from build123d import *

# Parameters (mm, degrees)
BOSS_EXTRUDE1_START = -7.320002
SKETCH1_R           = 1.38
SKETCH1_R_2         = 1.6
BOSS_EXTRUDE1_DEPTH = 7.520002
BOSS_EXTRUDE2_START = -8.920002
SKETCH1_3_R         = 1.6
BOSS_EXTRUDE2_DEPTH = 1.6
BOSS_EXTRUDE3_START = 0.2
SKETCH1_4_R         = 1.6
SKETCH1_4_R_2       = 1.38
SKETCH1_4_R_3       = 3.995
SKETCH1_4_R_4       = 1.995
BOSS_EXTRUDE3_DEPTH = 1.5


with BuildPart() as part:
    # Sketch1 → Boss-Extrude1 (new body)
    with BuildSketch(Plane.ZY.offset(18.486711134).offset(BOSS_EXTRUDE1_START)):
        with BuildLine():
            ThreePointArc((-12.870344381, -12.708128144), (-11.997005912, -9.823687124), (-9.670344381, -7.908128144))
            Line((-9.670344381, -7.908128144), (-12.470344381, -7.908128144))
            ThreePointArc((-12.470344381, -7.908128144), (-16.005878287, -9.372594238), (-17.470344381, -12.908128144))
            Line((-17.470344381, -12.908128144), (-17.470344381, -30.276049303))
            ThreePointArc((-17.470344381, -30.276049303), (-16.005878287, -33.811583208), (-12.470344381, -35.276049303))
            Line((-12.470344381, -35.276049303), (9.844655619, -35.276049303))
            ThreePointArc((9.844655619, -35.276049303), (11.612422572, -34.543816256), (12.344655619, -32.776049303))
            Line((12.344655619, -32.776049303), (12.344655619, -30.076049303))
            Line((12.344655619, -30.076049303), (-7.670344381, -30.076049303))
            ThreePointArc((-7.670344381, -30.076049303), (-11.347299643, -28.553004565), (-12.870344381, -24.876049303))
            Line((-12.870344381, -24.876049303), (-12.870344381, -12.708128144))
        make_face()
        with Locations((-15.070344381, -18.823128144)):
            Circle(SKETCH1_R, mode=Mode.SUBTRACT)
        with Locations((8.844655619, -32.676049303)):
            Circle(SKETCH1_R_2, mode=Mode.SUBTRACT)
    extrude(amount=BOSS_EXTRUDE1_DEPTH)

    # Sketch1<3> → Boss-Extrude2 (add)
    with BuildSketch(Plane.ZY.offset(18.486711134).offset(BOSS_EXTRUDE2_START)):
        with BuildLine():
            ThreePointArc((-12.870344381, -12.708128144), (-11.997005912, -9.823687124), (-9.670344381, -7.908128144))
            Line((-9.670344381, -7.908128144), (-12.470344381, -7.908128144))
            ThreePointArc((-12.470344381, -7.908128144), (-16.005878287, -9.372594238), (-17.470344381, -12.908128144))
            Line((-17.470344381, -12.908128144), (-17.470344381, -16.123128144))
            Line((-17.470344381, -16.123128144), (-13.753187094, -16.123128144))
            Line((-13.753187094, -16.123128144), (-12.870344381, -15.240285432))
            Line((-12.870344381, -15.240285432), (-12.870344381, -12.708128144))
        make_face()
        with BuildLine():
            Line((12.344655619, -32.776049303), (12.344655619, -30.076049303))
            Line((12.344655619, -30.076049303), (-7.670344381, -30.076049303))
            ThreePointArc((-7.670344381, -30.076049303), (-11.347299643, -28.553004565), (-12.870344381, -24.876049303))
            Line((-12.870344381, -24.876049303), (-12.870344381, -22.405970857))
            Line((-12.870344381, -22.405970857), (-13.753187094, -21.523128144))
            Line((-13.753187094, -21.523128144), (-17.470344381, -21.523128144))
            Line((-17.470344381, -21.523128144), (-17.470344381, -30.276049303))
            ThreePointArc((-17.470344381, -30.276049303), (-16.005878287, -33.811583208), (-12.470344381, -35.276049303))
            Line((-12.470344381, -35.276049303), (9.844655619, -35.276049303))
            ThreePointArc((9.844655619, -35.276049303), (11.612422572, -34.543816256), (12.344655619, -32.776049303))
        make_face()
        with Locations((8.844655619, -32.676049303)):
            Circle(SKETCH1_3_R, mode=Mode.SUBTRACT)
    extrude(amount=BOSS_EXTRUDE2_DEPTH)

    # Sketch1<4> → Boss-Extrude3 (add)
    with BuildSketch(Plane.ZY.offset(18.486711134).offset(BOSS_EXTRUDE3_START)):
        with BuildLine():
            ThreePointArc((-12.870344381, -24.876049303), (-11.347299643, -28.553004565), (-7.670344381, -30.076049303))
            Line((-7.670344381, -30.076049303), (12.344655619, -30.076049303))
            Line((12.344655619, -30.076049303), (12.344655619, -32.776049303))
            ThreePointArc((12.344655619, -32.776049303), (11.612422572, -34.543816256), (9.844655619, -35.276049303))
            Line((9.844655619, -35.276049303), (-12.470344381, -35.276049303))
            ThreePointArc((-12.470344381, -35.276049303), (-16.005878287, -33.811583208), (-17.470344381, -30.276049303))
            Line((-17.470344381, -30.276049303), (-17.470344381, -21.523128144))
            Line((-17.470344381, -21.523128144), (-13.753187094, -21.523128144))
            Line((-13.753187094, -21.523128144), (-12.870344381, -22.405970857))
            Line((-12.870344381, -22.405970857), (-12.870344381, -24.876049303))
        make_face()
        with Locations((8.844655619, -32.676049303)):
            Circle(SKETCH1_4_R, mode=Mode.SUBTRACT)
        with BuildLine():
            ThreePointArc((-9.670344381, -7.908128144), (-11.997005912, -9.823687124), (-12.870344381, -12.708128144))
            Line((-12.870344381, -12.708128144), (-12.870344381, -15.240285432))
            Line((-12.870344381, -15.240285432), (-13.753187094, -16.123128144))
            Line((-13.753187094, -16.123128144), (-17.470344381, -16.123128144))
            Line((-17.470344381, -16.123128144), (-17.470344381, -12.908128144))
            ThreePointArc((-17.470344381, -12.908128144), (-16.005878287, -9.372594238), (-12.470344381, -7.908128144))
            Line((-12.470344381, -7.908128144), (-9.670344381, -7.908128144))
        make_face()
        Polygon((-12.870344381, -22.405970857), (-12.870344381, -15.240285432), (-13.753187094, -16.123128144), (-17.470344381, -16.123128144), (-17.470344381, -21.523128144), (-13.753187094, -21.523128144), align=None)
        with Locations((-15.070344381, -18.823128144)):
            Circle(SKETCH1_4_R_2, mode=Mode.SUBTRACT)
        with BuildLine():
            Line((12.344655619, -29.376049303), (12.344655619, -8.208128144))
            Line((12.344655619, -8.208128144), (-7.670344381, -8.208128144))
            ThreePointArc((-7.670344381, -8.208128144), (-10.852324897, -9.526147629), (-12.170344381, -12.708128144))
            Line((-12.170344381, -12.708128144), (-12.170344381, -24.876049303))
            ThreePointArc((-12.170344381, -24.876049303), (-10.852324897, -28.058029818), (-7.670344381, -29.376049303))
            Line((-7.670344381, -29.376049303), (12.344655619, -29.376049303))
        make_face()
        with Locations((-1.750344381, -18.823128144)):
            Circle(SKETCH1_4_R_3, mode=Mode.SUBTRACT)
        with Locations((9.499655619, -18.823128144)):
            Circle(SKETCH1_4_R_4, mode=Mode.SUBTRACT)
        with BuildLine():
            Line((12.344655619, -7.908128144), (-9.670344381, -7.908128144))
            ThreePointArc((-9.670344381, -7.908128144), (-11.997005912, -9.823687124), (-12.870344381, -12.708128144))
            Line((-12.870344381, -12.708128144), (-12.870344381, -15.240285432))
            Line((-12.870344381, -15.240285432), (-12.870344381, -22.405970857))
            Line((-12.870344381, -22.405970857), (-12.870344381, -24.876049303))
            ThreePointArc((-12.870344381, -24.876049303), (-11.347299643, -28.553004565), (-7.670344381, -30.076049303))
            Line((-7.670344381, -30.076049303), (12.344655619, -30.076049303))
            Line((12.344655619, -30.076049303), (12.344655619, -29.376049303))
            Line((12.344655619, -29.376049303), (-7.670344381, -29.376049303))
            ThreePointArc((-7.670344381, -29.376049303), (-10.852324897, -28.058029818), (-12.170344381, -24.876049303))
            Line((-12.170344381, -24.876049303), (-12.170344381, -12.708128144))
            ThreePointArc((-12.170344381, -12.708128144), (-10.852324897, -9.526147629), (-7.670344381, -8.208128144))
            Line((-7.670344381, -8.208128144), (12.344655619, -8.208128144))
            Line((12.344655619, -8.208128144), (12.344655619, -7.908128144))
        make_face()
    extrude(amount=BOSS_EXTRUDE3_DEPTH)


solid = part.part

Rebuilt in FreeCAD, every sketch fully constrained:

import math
import FreeCAD as App
import Part
import Sketcher
Q = App.Units.Quantity

doc = App.newDocument("Part")
body = doc.addObject("PartDesign::Body", "Body")

# Sketch on YZ plane
sketch1 = doc.addObject("Sketcher::SketchObject", "Sketch")
body.addObject(sketch1)
sketch1.AttachmentSupport = (doc.YZ_Plane, [""])
sketch1.MapMode = "FlatFace"
sketch1.AttachmentOffset = App.Placement(App.Vector(0, 0, -11.166709), App.Rotation())
sketch1.addGeometry(Part.ArcOfCircle(Part.Circle(App.Vector(-12.7, -7.7, 0), App.Vector(0, 0, 1), 5.2), math.radians(-90), math.radians(-23)), False)
sketch1.addGeometry(Part.LineSegment(App.Vector(-7.9, -9.7, 0), App.Vector(-7.9, -12.5, 0)), False)
sketch1.addGeometry(Part.ArcOfCircle(Part.Circle(App.Vector(-12.9, -12.5, 0), App.Vector(0, 0, 1), 5), math.radians(-90), math.radians(0)), False)
sketch1.addGeometry(Part.LineSegment(App.Vector(-12.9, -17.5, 0), App.Vector(-30.3, -17.5, 0)), False)
sketch1.addGeometry(Part.ArcOfCircle(Part.Circle(App.Vector(-30.3, -12.5, 0), App.Vector(0, 0, 1), 5), math.radians(-180), math.radians(-90)), False)
sketch1.addGeometry(Part.LineSegment(App.Vector(-35.3, -12.5, 0), App.Vector(-35.3, 9.8, 0)), False)
sketch1.addGeometry(Part.ArcOfCircle(Part.Circle(App.Vector(-32.8, 9.8, 0), App.Vector(0, 0, 1), 2.5), math.radians(90), math.radians(180)), False)
sketch1.addGeometry(Part.LineSegment(App.Vector(-32.8, 12.3, 0), App.Vector(-30.1, 12.3, 0)), False)
sketch1.addGeometry(Part.LineSegment(App.Vector(-30.1, 12.3, 0), App.Vector(-30.1, -7.7, 0)), False)
sketch1.addGeometry(Part.ArcOfCircle(Part.Circle(App.Vector(-24.9, -7.7, 0), App.Vector(0, 0, 1), 5.2), math.radians(-180), math.radians(-90)), False)
sketch1.addGeometry(Part.LineSegment(App.Vector(-24.9, -12.9, 0), App.Vector(-12.7, -12.9, 0)), False)
sketch1.addGeometry(Part.Circle(App.Vector(-32.7, 8.8, 0), App.Vector(0, 0, 1), 1.6), False)
sketch1.addGeometry(Part.Circle(App.Vector(-18.8, -15.1, 0), App.Vector(0, 0, 1), 1.4), False)
sketch1.addConstraint(Sketcher.Constraint("Coincident", 0, 2, 1, 1))
sketch1.addConstraint(Sketcher.Constraint("Tangent", 1, 2, 2, 2))
sketch1.addConstraint(Sketcher.Constraint("Tangent", 2, 1, 3, 1))
sketch1.addConstraint(Sketcher.Constraint("Tangent", 3, 2, 4, 2))
sketch1.addConstraint(Sketcher.Constraint("Tangent", 4, 1, 5, 1))
sketch1.addConstraint(Sketcher.Constraint("Tangent", 5, 2, 6, 2))
sketch1.addConstraint(Sketcher.Constraint("Tangent", 6, 1, 7, 1))
sketch1.addConstraint(Sketcher.Constraint("Coincident", 7, 2, 8, 1))
sketch1.addConstraint(Sketcher.Constraint("Tangent", 8, 2, 9, 1))
sketch1.addConstraint(Sketcher.Constraint("Tangent", 9, 2, 10, 1))
sketch1.addConstraint(Sketcher.Constraint("Tangent", 10, 2, 0, 1))
sketch1.addConstraint(Sketcher.Constraint("Vertical", 1))
sketch1.addConstraint(Sketcher.Constraint("Horizontal", 3))
sketch1.addConstraint(Sketcher.Constraint("Vertical", 5))
sketch1.addConstraint(Sketcher.Constraint("Horizontal", 7))
sketch1.addConstraint(Sketcher.Constraint("Vertical", 8))
sketch1.addConstraint(Sketcher.Constraint("Horizontal", 10))
sketch1.addConstraint(Sketcher.Constraint("Equal", 2, 4))
sketch1.addConstraint(Sketcher.Constraint("Equal", 0, 9))
sketch1.addConstraint(Sketcher.Constraint("Radius", 2, Q("5 mm")))
sketch1.addConstraint(Sketcher.Constraint("Diameter", 11, Q("3.2 mm")))
sketch1.addConstraint(Sketcher.Constraint("Radius", 0, Q("5.2 mm")))
sketch1.addConstraint(Sketcher.Constraint("Radius", 6, Q("2.5 mm")))
sketch1.addConstraint(Sketcher.Constraint("Diameter", 12, Q("2.76 mm")))
sketch1.addConstraint(Sketcher.Constraint("DistanceX", 7, 1, 7, 2, Q("2.7 mm")))
sketch1.addConstraint(Sketcher.Constraint("DistanceY", 1, 2, 1, 1, Q("2.8 mm")))
sketch1.addConstraint(Sketcher.Constraint("DistanceY", 11, 3, 6, 3, Q("1 mm")))
sketch1.addConstraint(Sketcher.Constraint("DistanceY", 0, 2, 0, 3, Q("2 mm")))
sketch1.addConstraint(Sketcher.Constraint("DistanceX", 6, 3, 11, 3, Q("0.1 mm")))
sketch1.addConstraint(Sketcher.Constraint("DistanceY", 12, 3, 2, 3, Q("2.6 mm")))
sketch1.addConstraint(Sketcher.Constraint("DistanceY", 5, 1, 5, 2, Q("22.315 mm")))
sketch1.addConstraint(Sketcher.Constraint("DistanceX", 12, 3, 2, 3, Q("5.915 mm")))
sketch1.addConstraint(Sketcher.Constraint("DistanceX", 3, 2, 3, 1, Q("17.367921 mm")))
sketch1.addConstraint(Sketcher.Constraint("DistanceX", 0, 3, -1, 1, Q("12.708128 mm")))
sketch1.addConstraint(Sketcher.Constraint("DistanceY", 0, 3, -1, 1, Q("7.670344 mm")))
pad1 = doc.addObject("PartDesign::Pad", "Pad")
body.addObject(pad1)
pad1.Profile = sketch1
pad1.Length = 7.520002
pad1.Reversed = True

# Sketch on YZ plane
sketch2 = doc.addObject("Sketcher::SketchObject", "Sketch001")
body.addObject(sketch2)
sketch2.AttachmentSupport = (doc.YZ_Plane, [""])
sketch2.MapMode = "FlatFace"
sketch2.AttachmentOffset = App.Placement(App.Vector(0, 0, -9.566709), App.Rotation())
sketch2.addGeometry(Part.ArcOfCircle(Part.Circle(App.Vector(-12.7, -7.7, 0), App.Vector(0, 0, 1), 5.2), math.radians(-90), math.radians(-23)), False)
sketch2.addGeometry(Part.LineSegment(App.Vector(-7.9, -9.7, 0), App.Vector(-7.9, -12.5, 0)), False)
sketch2.addGeometry(Part.ArcOfCircle(Part.Circle(App.Vector(-12.9, -12.5, 0), App.Vector(0, 0, 1), 5), math.radians(-90), math.radians(0)), False)
sketch2.addGeometry(Part.LineSegment(App.Vector(-12.9, -17.5, 0), App.Vector(-16.1, -17.5, 0)), False)
sketch2.addGeometry(Part.LineSegment(App.Vector(-16.1, -17.5, 0), App.Vector(-16.1, -13.8, 0)), False)
sketch2.addGeometry(Part.LineSegment(App.Vector(-16.1, -13.8, 0), App.Vector(-15.2, -12.9, 0)), False)
sketch2.addGeometry(Part.LineSegment(App.Vector(-15.2, -12.9, 0), App.Vector(-12.7, -12.9, 0)), False)
sketch2.addGeometry(Part.LineSegment(App.Vector(-32.8, 12.3, 0), App.Vector(-30.1, 12.3, 0)), False)
sketch2.addGeometry(Part.LineSegment(App.Vector(-30.1, 12.3, 0), App.Vector(-30.1, -7.7, 0)), False)
sketch2.addGeometry(Part.ArcOfCircle(Part.Circle(App.Vector(-24.9, -7.7, 0), App.Vector(0, 0, 1), 5.2), math.radians(-180), math.radians(-90)), False)
sketch2.addGeometry(Part.LineSegment(App.Vector(-24.9, -12.9, 0), App.Vector(-22.4, -12.9, 0)), False)
sketch2.addGeometry(Part.LineSegment(App.Vector(-22.4, -12.9, 0), App.Vector(-21.5, -13.8, 0)), False)
sketch2.addGeometry(Part.LineSegment(App.Vector(-21.5, -13.8, 0), App.Vector(-21.5, -17.5, 0)), False)
sketch2.addGeometry(Part.LineSegment(App.Vector(-21.5, -17.5, 0), App.Vector(-30.3, -17.5, 0)), False)
sketch2.addGeometry(Part.ArcOfCircle(Part.Circle(App.Vector(-30.3, -12.5, 0), App.Vector(0, 0, 1), 5), math.radians(-180), math.radians(-90)), False)
sketch2.addGeometry(Part.LineSegment(App.Vector(-35.3, -12.5, 0), App.Vector(-35.3, 9.8, 0)), False)
sketch2.addGeometry(Part.ArcOfCircle(Part.Circle(App.Vector(-32.8, 9.8, 0), App.Vector(0, 0, 1), 2.5), math.radians(90), math.radians(180)), False)
sketch2.addGeometry(Part.Circle(App.Vector(-32.7, 8.8, 0), App.Vector(0, 0, 1), 1.6), False)
sketch2.addConstraint(Sketcher.Constraint("Coincident", 0, 2, 1, 1))
sketch2.addConstraint(Sketcher.Constraint("Tangent", 1, 2, 2, 2))
sketch2.addConstraint(Sketcher.Constraint("Tangent", 2, 1, 3, 1))
sketch2.addConstraint(Sketcher.Constraint("Coincident", 3, 2, 4, 1))
sketch2.addConstraint(Sketcher.Constraint("Coincident", 4, 2, 5, 1))
sketch2.addConstraint(Sketcher.Constraint("Coincident", 5, 2, 6, 1))
sketch2.addConstraint(Sketcher.Constraint("Tangent", 6, 2, 0, 1))
sketch2.addConstraint(Sketcher.Constraint("Coincident", 7, 2, 8, 1))
sketch2.addConstraint(Sketcher.Constraint("Tangent", 8, 2, 9, 1))
sketch2.addConstraint(Sketcher.Constraint("Tangent", 9, 2, 10, 1))
sketch2.addConstraint(Sketcher.Constraint("Coincident", 10, 2, 11, 1))
sketch2.addConstraint(Sketcher.Constraint("Coincident", 11, 2, 12, 1))
sketch2.addConstraint(Sketcher.Constraint("Coincident", 12, 2, 13, 1))
sketch2.addConstraint(Sketcher.Constraint("Tangent", 13, 2, 14, 2))
sketch2.addConstraint(Sketcher.Constraint("Tangent", 14, 1, 15, 1))
sketch2.addConstraint(Sketcher.Constraint("Tangent", 15, 2, 16, 2))
sketch2.addConstraint(Sketcher.Constraint("Tangent", 16, 1, 7, 1))
sketch2.addConstraint(Sketcher.Constraint("Vertical", 1))
sketch2.addConstraint(Sketcher.Constraint("Horizontal", 3))
sketch2.addConstraint(Sketcher.Constraint("Vertical", 4))
sketch2.addConstraint(Sketcher.Constraint("Horizontal", 6))
sketch2.addConstraint(Sketcher.Constraint("Horizontal", 7))
sketch2.addConstraint(Sketcher.Constraint("Vertical", 8))
sketch2.addConstraint(Sketcher.Constraint("Horizontal", 10))
sketch2.addConstraint(Sketcher.Constraint("Vertical", 12))
sketch2.addConstraint(Sketcher.Constraint("Horizontal", 13))
sketch2.addConstraint(Sketcher.Constraint("Vertical", 15))
sketch2.addConstraint(Sketcher.Constraint("Equal", 0, 9))
sketch2.addConstraint(Sketcher.Constraint("Equal", 2, 14))
sketch2.addConstraint(Sketcher.Constraint("Perpendicular", 5, 11))
sketch2.addConstraint(Sketcher.Constraint("Horizontal", 0, 3, 9, 3))
sketch2.addConstraint(Sketcher.Constraint("Horizontal", 2, 3, 14, 3))
sketch2.addConstraint(Sketcher.Constraint("Horizontal", 4, 2, 11, 2))
sketch2.addConstraint(Sketcher.Constraint("Equal", 5, 11))
sketch2.addConstraint(Sketcher.Constraint("Radius", 2, Q("5 mm")))
sketch2.addConstraint(Sketcher.Constraint("Diameter", 17, Q("3.2 mm")))
sketch2.addConstraint(Sketcher.Constraint("Radius", 0, Q("5.2 mm")))
sketch2.addConstraint(Sketcher.Constraint("Radius", 16, Q("2.5 mm")))
sketch2.addConstraint(Sketcher.Constraint("DistanceX", 7, 1, 7, 2, Q("2.7 mm")))
sketch2.addConstraint(Sketcher.Constraint("DistanceY", 1, 2, 1, 1, Q("2.8 mm")))
sketch2.addConstraint(Sketcher.Constraint("DistanceY", 17, 3, 16, 3, Q("1 mm")))
sketch2.addConstraint(Sketcher.Constraint("DistanceY", 0, 2, 0, 3, Q("2 mm")))
sketch2.addConstraint(Sketcher.Constraint("DistanceX", 16, 3, 17, 3, Q("0.1 mm")))
sketch2.addConstraint(Sketcher.Constraint("DistanceX", 11, 2, 4, 2, Q("5.4 mm")))
sketch2.addConstraint(Sketcher.Constraint("DistanceX", 3, 2, 3, 1, Q("3.215 mm")))
sketch2.addConstraint(Sketcher.Constraint("DistanceY", 8, 2, 8, 1, Q("20.015 mm")))
sketch2.addConstraint(Sketcher.Constraint("DistanceX", 10, 1, 10, 2, Q("2.470078 mm")))
sketch2.addConstraint(Sketcher.Constraint("DistanceX", 13, 2, 13, 1, Q("8.752921 mm")))
sketch2.addConstraint(Sketcher.Constraint("DistanceX", 0, 3, -1, 1, Q("12.708128 mm")))
sketch2.addConstraint(Sketcher.Constraint("DistanceY", 0, 3, -1, 1, Q("7.670344 mm")))
pad2 = doc.addObject("PartDesign::Pad", "Pad001")
body.addObject(pad2)
pad2.Profile = sketch2
pad2.Length = 1.6
pad2.Reversed = True

# Sketch on YZ plane
sketch3 = doc.addObject("Sketcher::SketchObject", "Sketch002")
body.addObject(sketch3)
sketch3.AttachmentSupport = (doc.YZ_Plane, [""])
sketch3.MapMode = "FlatFace"
sketch3.AttachmentOffset = App.Placement(App.Vector(0, 0, -18.686711), App.Rotation())
sketch3.addGeometry(Part.LineSegment(App.Vector(-32.8, 12.3, 0), App.Vector(-7.9, 12.3, 0)), False)
sketch3.addGeometry(Part.LineSegment(App.Vector(-7.9, 12.3, 0), App.Vector(-7.9, -12.5, 0)), False)
sketch3.addGeometry(Part.ArcOfCircle(Part.Circle(App.Vector(-12.9, -12.5, 0), App.Vector(0, 0, 1), 5), math.radians(-90), math.radians(0)), False)
sketch3.addGeometry(Part.LineSegment(App.Vector(-12.9, -17.5, 0), App.Vector(-30.3, -17.5, 0)), False)
sketch3.addGeometry(Part.ArcOfCircle(Part.Circle(App.Vector(-30.3, -12.5, 0), App.Vector(0, 0, 1), 5), math.radians(-180), math.radians(-90)), False)
sketch3.addGeometry(Part.LineSegment(App.Vector(-35.3, -12.5, 0), App.Vector(-35.3, 9.8, 0)), False)
sketch3.addGeometry(Part.ArcOfCircle(Part.Circle(App.Vector(-32.8, 9.8, 0), App.Vector(0, 0, 1), 2.5), math.radians(90), math.radians(180)), False)
sketch3.addGeometry(Part.Circle(App.Vector(-32.7, 8.8, 0), App.Vector(0, 0, 1), 1.6), False)
sketch3.addGeometry(Part.Circle(App.Vector(-18.8, -15.1, 0), App.Vector(0, 0, 1), 1.4), False)
sketch3.addGeometry(Part.Circle(App.Vector(-18.8, 9.5, 0), App.Vector(0, 0, 1), 2), False)
sketch3.addGeometry(Part.Circle(App.Vector(-18.8, -1.8, 0), App.Vector(0, 0, 1), 4), False)
sketch3.addConstraint(Sketcher.Constraint("Coincident", 0, 2, 1, 1))
sketch3.addConstraint(Sketcher.Constraint("Tangent", 1, 2, 2, 2))
sketch3.addConstraint(Sketcher.Constraint("Tangent", 2, 1, 3, 1))
sketch3.addConstraint(Sketcher.Constraint("Tangent", 3, 2, 4, 2))
sketch3.addConstraint(Sketcher.Constraint("Tangent", 4, 1, 5, 1))
sketch3.addConstraint(Sketcher.Constraint("Tangent", 5, 2, 6, 2))
sketch3.addConstraint(Sketcher.Constraint("Tangent", 6, 1, 0, 1))
sketch3.addConstraint(Sketcher.Constraint("Horizontal", 0))
sketch3.addConstraint(Sketcher.Constraint("Vertical", 1))
sketch3.addConstraint(Sketcher.Constraint("Horizontal", 3))
sketch3.addConstraint(Sketcher.Constraint("Vertical", 5))
sketch3.addConstraint(Sketcher.Constraint("Equal", 2, 4))
sketch3.addConstraint(Sketcher.Constraint("Vertical", 8, 3, 9, 3))
sketch3.addConstraint(Sketcher.Constraint("Vertical", 9, 3, 10, 3))
sketch3.addConstraint(Sketcher.Constraint("Radius", 2, Q("5 mm")))
sketch3.addConstraint(Sketcher.Constraint("Diameter", 7, Q("3.2 mm")))
sketch3.addConstraint(Sketcher.Constraint("Radius", 6, Q("2.5 mm")))
sketch3.addConstraint(Sketcher.Constraint("Diameter", 8, Q("2.76 mm")))
sketch3.addConstraint(Sketcher.Constraint("Diameter", 9, Q("3.99 mm")))
sketch3.addConstraint(Sketcher.Constraint("Diameter", 10, Q("7.99 mm")))
sketch3.addConstraint(Sketcher.Constraint("DistanceY", 7, 3, 6, 3, Q("1 mm")))
sketch3.addConstraint(Sketcher.Constraint("DistanceX", 6, 3, 7, 3, Q("0.1 mm")))
sketch3.addConstraint(Sketcher.Constraint("DistanceY", 8, 3, 2, 3, Q("2.6 mm")))
sketch3.addConstraint(Sketcher.Constraint("DistanceY", 1, 2, 1, 1, Q("24.815 mm")))
sketch3.addConstraint(Sketcher.Constraint("DistanceY", 2, 3, 9, 3, Q("21.97 mm")))
sketch3.addConstraint(Sketcher.Constraint("DistanceY", 10, 3, 9, 3, Q("11.25 mm")))
sketch3.addConstraint(Sketcher.Constraint("DistanceX", 8, 3, 2, 3, Q("5.915 mm")))
sketch3.addConstraint(Sketcher.Constraint("DistanceX", 0, 1, 0, 2, Q("24.867921 mm")))
sketch3.addConstraint(Sketcher.Constraint("DistanceX", 2, 3, -1, 1, Q("12.908128 mm")))
sketch3.addConstraint(Sketcher.Constraint("DistanceY", 2, 3, -1, 1, Q("12.470344 mm")))
pad3 = doc.addObject("PartDesign::Pad", "Pad002")
body.addObject(pad3)
pad3.Profile = sketch3
pad3.Length = 1.5
pad3.Reversed = True

doc.recompute()
